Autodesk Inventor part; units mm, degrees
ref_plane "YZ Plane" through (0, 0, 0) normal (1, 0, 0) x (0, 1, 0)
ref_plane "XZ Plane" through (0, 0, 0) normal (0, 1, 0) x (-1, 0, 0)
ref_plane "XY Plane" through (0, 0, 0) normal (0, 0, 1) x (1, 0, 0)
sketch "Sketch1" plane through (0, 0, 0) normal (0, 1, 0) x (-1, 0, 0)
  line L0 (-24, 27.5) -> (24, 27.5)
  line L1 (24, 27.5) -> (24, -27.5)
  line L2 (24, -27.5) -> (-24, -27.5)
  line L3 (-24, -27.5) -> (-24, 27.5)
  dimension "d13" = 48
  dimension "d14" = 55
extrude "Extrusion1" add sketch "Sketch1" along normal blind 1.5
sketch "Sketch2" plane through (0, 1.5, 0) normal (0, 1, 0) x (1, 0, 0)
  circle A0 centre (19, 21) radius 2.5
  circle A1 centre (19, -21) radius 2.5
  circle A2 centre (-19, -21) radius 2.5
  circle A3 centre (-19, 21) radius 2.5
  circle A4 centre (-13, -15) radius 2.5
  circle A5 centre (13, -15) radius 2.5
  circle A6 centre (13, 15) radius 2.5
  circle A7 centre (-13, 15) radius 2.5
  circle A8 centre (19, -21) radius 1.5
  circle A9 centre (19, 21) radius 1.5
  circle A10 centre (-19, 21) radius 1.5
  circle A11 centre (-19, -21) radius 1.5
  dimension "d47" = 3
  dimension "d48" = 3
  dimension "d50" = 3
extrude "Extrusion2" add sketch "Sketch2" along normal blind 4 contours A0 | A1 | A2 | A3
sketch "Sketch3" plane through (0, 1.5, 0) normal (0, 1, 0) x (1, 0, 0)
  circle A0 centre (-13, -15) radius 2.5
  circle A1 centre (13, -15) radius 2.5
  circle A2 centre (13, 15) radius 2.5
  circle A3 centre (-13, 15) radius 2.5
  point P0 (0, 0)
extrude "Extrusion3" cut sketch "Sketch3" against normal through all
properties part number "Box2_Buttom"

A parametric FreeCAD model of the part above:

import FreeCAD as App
import Part
import Sketcher

V = App.Vector


def add_polygon(sketch, points):
    """Adds a closed chain of lines whose ends are joined by coincident constraints."""
    first, n = sketch.GeometryCount, len(points)
    for a, b in zip(points, points[1:] + points[:1]):
        sketch.addGeometry(Part.LineSegment(App.Vector(*a, 0), App.Vector(*b, 0)), False)
    for i in range(n):
        sketch.addConstraint(Sketcher.Constraint("Coincident", first + i, 2, first + (i + 1) % n, 1))

doc = App.newDocument("Part")
body = doc.addObject("PartDesign::Body", "Body")

# Sketch on XZ plane
sketch1 = body.newObject("Sketcher::SketchObject", "Sketch")
sketch1.AttachmentSupport = (doc.getObject("XZ_Plane"), [""])
sketch1.MapMode = "FlatFace"
add_polygon(sketch1, [(-24, 27.5), (24, 27.5), (24, -27.5), (-24, -27.5)])  # lines 0-3
sketch1.addConstraint(Sketcher.Constraint("Horizontal", 0))
sketch1.addConstraint(Sketcher.Constraint("Vertical", 1))
sketch1.addConstraint(Sketcher.Constraint("Horizontal", 2))
sketch1.addConstraint(Sketcher.Constraint("Vertical", 3))
sketch1.addConstraint(Sketcher.Constraint("Symmetric", 0, 2, 2, 2, -1, 1))
sketch1.addConstraint(Sketcher.Constraint("DistanceX", 0, 1, 0, 2, 48.0))
sketch1.addConstraint(Sketcher.Constraint("DistanceY", 1, 2, 1, 1, 55.0))
pad1 = body.newObject("PartDesign::Pad", "Pad")
pad1.Profile = sketch1
pad1.Length = 1.5
pad1.Reversed = True

# Sketch on XZ plane
sketch2 = body.newObject("Sketcher::SketchObject", "Sketch001")
sketch2.AttachmentSupport = (doc.getObject("XZ_Plane"), [""])
sketch2.MapMode = "FlatFace"
sketch2.AttachmentOffset = App.Placement(V(0, 0, -1.5), App.Rotation())
sketch2.addGeometry(Part.Circle(V(19, -21, 0), V(0, 0, 1), 2.5), False)
sketch2.addGeometry(Part.Circle(V(19, -21, 0), V(0, 0, 1), 1.5), False)
sketch2.addGeometry(Part.Circle(V(19, 21, 0), V(0, 0, 1), 2.5), False)
sketch2.addGeometry(Part.Circle(V(19, 21, 0), V(0, 0, 1), 1.5), False)
sketch2.addGeometry(Part.Circle(V(-19, 21, 0), V(0, 0, 1), 2.5), False)
sketch2.addGeometry(Part.Circle(V(-19, 21, 0), V(0, 0, 1), 1.5), False)
sketch2.addGeometry(Part.Circle(V(-19, -21, 0), V(0, 0, 1), 2.5), False)
sketch2.addGeometry(Part.Circle(V(-19, -21, 0), V(0, 0, 1), 1.5), False)
sketch2.addConstraint(Sketcher.Constraint("Coincident", 1, 3, 0, 3))
sketch2.addConstraint(Sketcher.Constraint("Coincident", 3, 3, 2, 3))
sketch2.addConstraint(Sketcher.Constraint("Coincident", 5, 3, 4, 3))
sketch2.addConstraint(Sketcher.Constraint("Coincident", 7, 3, 6, 3))
sketch2.addConstraint(Sketcher.Constraint("Equal", 0, 2))
sketch2.addConstraint(Sketcher.Constraint("Equal", 1, 3))
sketch2.addConstraint(Sketcher.Constraint("Equal", 2, 4))
sketch2.addConstraint(Sketcher.Constraint("Equal", 3, 5))
sketch2.addConstraint(Sketcher.Constraint("Equal", 4, 6))
sketch2.addConstraint(Sketcher.Constraint("Equal", 5, 7))
sketch2.addConstraint(Sketcher.Constraint("Symmetric", 0, 3, 4, 3, -1, 1))
sketch2.addConstraint(Sketcher.Constraint("Symmetric", 2, 3, 6, 3, -1, 1))
sketch2.addConstraint(Sketcher.Constraint("Symmetric", 2, 3, 4, 3, -2))
sketch2.addConstraint(Sketcher.Constraint("Diameter", 1, 3.0))
sketch2.addConstraint(Sketcher.Constraint("Diameter", 0, 5.0))
sketch2.addConstraint(Sketcher.Constraint("DistanceX", -1, 1, 0, 3, 19.0))
sketch2.addConstraint(Sketcher.Constraint("DistanceY", 0, 3, -1, 1, 21.0))
pad2 = body.newObject("PartDesign::Pad", "Pad001")
pad2.Profile = sketch2
pad2.Length = 4
pad2.Reversed = True

# Sketch on XZ plane
sketch3 = body.newObject("Sketcher::SketchObject", "Sketch002")
sketch3.AttachmentSupport = (doc.getObject("XZ_Plane"), [""])
sketch3.MapMode = "FlatFace"
sketch3.AttachmentOffset = App.Placement(V(0, 0, -1.5), App.Rotation())
sketch3.addGeometry(Part.Circle(V(-13, 15, 0), V(0, 0, 1), 2.5), False)
sketch3.addGeometry(Part.Circle(V(13, 15, 0), V(0, 0, 1), 2.5), False)
sketch3.addGeometry(Part.Circle(V(13, -15, 0), V(0, 0, 1), 2.5), False)
sketch3.addGeometry(Part.Circle(V(-13, -15, 0), V(0, 0, 1), 2.5), False)
sketch3.addConstraint(Sketcher.Constraint("Equal", 0, 1))
sketch3.addConstraint(Sketcher.Constraint("Equal", 1, 2))
sketch3.addConstraint(Sketcher.Constraint("Equal", 2, 3))
sketch3.addConstraint(Sketcher.Constraint("Symmetric", 0, 3, 2, 3, -1, 1))
sketch3.addConstraint(Sketcher.Constraint("Symmetric", 1, 3, 3, 3, -1, 1))
sketch3.addConstraint(Sketcher.Constraint("Symmetric", 0, 3, 1, 3, -2))
sketch3.addConstraint(Sketcher.Constraint("Diameter", 0, 5.0))
sketch3.addConstraint(Sketcher.Constraint("DistanceX", 0, 3, -1, 1, 13.0))
sketch3.addConstraint(Sketcher.Constraint("DistanceY", -1, 1, 0, 3, 15.0))
pocket1 = body.newObject("PartDesign::Pocket", "Pocket")
pocket1.Profile = sketch3
pocket1.Type = "ThroughAll"
pocket1.Reversed = True

doc.recompute()
